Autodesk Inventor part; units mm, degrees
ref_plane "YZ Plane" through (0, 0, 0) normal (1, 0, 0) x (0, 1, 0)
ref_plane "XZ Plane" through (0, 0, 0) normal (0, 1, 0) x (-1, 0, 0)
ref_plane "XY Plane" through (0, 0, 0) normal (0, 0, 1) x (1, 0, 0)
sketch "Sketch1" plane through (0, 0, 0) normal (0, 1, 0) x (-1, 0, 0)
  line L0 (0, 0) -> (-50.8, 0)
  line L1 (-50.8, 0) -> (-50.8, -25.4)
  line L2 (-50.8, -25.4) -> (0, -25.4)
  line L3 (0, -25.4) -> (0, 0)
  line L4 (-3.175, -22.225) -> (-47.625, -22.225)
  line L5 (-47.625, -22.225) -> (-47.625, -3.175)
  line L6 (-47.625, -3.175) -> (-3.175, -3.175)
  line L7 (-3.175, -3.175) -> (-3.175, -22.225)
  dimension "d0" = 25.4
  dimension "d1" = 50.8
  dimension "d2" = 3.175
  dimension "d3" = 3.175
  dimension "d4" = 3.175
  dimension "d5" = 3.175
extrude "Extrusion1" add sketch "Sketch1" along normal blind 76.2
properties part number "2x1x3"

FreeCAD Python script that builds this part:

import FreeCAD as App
import Part
import Sketcher

V = App.Vector
Q = App.Units.Quantity


def add_polygon(sketch, points):
    """Adds a closed chain of lines whose ends are joined by coincident constraints."""
    first, n = sketch.GeometryCount, len(points)
    for a, b in zip(points, points[1:] + points[:1]):
        sketch.addGeometry(Part.LineSegment(App.Vector(*a, 0), App.Vector(*b, 0)), False)
    for i in range(n):
        sketch.addConstraint(Sketcher.Constraint("Coincident", first + i, 2, first + (i + 1) % n, 1))

doc = App.newDocument("Part")
body = doc.addObject("PartDesign::Body", "Body")

sketch1 = doc.addObject("Sketcher::SketchObject", "Sketch")
body.addObject(sketch1)
sketch1.AttachmentSupport = (doc.XZ_Plane, [""])
sketch1.MapMode = "FlatFace"
add_polygon(sketch1, [(0, -25), (0, 0), (51, 0), (51, -25)])
add_polygon(sketch1, [(3, -3), (3, -22), (48, -22), (48, -3)])
sketch1.addConstraint(Sketcher.Constraint("Vertical", 0))
sketch1.addConstraint(Sketcher.Constraint("Horizontal", 1))
sketch1.addConstraint(Sketcher.Constraint("Vertical", 2))
sketch1.addConstraint(Sketcher.Constraint("Horizontal", 3))
sketch1.addConstraint(Sketcher.Constraint("Vertical", 4))
sketch1.addConstraint(Sketcher.Constraint("Horizontal", 5))
sketch1.addConstraint(Sketcher.Constraint("Vertical", 6))
sketch1.addConstraint(Sketcher.Constraint("Horizontal", 7))
sketch1.addConstraint(Sketcher.Constraint("Coincident", 0, 2, -1, 1))
sketch1.addConstraint(Sketcher.Constraint("DistanceX", 1, 1, 1, 2, Q("2 in")))
sketch1.addConstraint(Sketcher.Constraint("DistanceY", 0, 1, 0, 2, Q("1 in")))
sketch1.addConstraint(Sketcher.Constraint("DistanceX", -1, 1, 4, 2, Q("0.125 in")))
sketch1.addConstraint(Sketcher.Constraint("DistanceY", 6, 2, -1, 1, Q("0.125 in")))
sketch1.addConstraint(Sketcher.Constraint("DistanceY", 3, 2, 4, 2, Q("0.125 in")))
sketch1.addConstraint(Sketcher.Constraint("DistanceX", 5, 2, 2, 2, Q("0.125 in")))
pad1 = doc.addObject("PartDesign::Pad", "Pad")
body.addObject(pad1)
pad1.Profile = sketch1
pad1.Length = Q("3 in")
pad1.Reversed = True

doc.recompute()
